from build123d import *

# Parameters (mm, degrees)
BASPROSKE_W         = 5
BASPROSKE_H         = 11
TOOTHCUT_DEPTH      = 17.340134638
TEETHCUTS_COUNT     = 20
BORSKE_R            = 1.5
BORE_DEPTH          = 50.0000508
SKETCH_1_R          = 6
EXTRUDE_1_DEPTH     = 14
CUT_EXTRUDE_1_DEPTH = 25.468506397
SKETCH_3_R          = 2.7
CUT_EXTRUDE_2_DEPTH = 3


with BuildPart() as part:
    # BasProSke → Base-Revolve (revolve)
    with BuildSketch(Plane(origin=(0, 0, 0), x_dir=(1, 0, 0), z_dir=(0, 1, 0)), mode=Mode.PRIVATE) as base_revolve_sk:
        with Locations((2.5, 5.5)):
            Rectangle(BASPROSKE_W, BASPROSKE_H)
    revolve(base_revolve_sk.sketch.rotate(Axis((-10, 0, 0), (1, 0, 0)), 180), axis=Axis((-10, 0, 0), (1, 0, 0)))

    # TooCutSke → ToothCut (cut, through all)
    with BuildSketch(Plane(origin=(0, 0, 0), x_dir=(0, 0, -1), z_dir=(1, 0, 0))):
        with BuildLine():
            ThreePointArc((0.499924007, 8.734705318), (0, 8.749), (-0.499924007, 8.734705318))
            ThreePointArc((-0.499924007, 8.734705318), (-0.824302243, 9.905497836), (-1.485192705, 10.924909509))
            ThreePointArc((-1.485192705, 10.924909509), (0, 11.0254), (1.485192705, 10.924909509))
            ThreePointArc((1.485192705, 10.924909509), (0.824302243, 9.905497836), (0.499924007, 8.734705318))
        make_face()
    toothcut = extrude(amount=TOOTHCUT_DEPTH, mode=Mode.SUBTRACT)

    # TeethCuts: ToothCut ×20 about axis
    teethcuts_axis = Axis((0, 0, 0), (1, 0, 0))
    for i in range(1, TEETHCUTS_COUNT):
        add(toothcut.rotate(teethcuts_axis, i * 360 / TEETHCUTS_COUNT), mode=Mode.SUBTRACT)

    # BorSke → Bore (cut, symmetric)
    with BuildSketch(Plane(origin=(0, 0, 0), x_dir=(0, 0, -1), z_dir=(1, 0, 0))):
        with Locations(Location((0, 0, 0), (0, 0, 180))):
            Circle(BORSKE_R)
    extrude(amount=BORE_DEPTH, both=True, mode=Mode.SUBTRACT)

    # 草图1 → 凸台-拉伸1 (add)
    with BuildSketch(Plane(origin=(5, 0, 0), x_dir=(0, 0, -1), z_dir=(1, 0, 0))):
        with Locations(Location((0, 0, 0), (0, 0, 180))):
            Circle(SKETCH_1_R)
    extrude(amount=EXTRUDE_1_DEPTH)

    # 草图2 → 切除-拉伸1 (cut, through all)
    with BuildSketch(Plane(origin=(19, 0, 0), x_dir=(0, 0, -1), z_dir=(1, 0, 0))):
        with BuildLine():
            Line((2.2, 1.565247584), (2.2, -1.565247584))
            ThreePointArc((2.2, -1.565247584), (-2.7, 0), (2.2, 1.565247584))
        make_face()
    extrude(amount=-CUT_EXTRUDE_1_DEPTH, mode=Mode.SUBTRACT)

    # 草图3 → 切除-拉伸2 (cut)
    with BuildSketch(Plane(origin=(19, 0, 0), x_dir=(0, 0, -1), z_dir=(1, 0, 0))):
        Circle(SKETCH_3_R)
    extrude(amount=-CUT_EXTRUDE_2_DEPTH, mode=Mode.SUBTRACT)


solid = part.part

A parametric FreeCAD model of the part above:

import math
import FreeCAD as App
import Part
import Sketcher

V = App.Vector
Q = App.Units.Quantity

doc = App.newDocument("Part")
body = doc.addObject("PartDesign::Body", "Body")

# Sketch on XZ plane
sketch1 = body.newObject("Sketcher::SketchObject", "Sketch")
sketch1.AttachmentSupport = (doc.getObject("XZ_Plane"), [""])
sketch1.MapMode = "FlatFace"
sketch1.addGeometry(Part.LineSegment(V(0, -11, 0), V(0, 0, 0)), False)
sketch1.addGeometry(Part.LineSegment(V(0, 0, 0), V(5, 0, 0)), False)
sketch1.addGeometry(Part.LineSegment(V(5, 0, 0), V(5, -11, 0)), False)
sketch1.addGeometry(Part.LineSegment(V(5, -11, 0), V(0, -11, 0)), False)
sketch1.addConstraint(Sketcher.Constraint("Coincident", 0, 2, 1, 1))
sketch1.addConstraint(Sketcher.Constraint("Coincident", 1, 2, 2, 1))
sketch1.addConstraint(Sketcher.Constraint("Coincident", 2, 2, 3, 1))
sketch1.addConstraint(Sketcher.Constraint("Coincident", 3, 2, 0, 1))
sketch1.addConstraint(Sketcher.Constraint("Vertical", 0))
sketch1.addConstraint(Sketcher.Constraint("Horizontal", 1))
sketch1.addConstraint(Sketcher.Constraint("Vertical", 2))
sketch1.addConstraint(Sketcher.Constraint("Horizontal", 3))
sketch1.addConstraint(Sketcher.Constraint("Coincident", 0, 2, -1, 1))
sketch1.addConstraint(Sketcher.Constraint("DistanceX", 1, 1, 1, 2, Q("5 mm")))
sketch1.addConstraint(Sketcher.Constraint("DistanceY", 0, 1, 0, 2, Q("11 mm")))
revolution = body.newObject("PartDesign::Revolution", "Revolution")
revolution.Profile = sketch1
revolution.ReferenceAxis = (sketch1, ["H_Axis"])
revolution.Angle = 360

# Sketch on YZ plane
sketch2 = body.newObject("Sketcher::SketchObject", "Sketch001")
sketch2.AttachmentSupport = (doc.getObject("YZ_Plane"), [""])
sketch2.MapMode = "FlatFace"
sketch2.addGeometry(Part.ArcOfCircle(Part.Circle(V(0, 0, 0), V(0, 0, 1), 8.749), math.radians(-3.275705), math.radians(3.275705)), False)
sketch2.addGeometry(Part.ArcOfCircle(Part.Circle(V(8.264487, -4.47219, 0), V(0, 0, 1), 4), math.radians(48.309566), math.radians(83.249005)), False)
sketch2.addGeometry(Part.ArcOfCircle(Part.Circle(V(0, 0, 0), V(0, 0, 1), 11.0254), math.radians(-7.741647), math.radians(7.741647)), False)
sketch2.addGeometry(Part.ArcOfCircle(Part.Circle(V(8.264487, 4.47219, 0), V(0, 0, 1), 4), math.radians(-83.249005), math.radians(-48.309566)), False)
sketch2.addConstraint(Sketcher.Constraint("Coincident", 0, 1, 1, 2))
sketch2.addConstraint(Sketcher.Constraint("Coincident", 1, 1, 2, 1))
sketch2.addConstraint(Sketcher.Constraint("Coincident", 2, 2, 3, 2))
sketch2.addConstraint(Sketcher.Constraint("Coincident", 3, 1, 0, 2))
sketch2.addConstraint(Sketcher.Constraint("Coincident", 0, 3, -1, 1))
sketch2.addConstraint(Sketcher.Constraint("Coincident", 2, 3, -1, 1))
sketch2.addConstraint(Sketcher.Constraint("Equal", 1, 3))
sketch2.addConstraint(Sketcher.Constraint("Symmetric", 1, 3, 3, 3, -1))
sketch2.addConstraint(Sketcher.Constraint("Radius", 1, Q("4 mm")))
sketch2.addConstraint(Sketcher.Constraint("Radius", 0, Q("8.749 mm")))
sketch2.addConstraint(Sketcher.Constraint("Radius", 2, Q("11.0254 mm")))
sketch2.addConstraint(Sketcher.Constraint("DistanceY", 1, 3, -1, 1, Q("4.47219 mm")))
sketch2.addConstraint(Sketcher.Constraint("DistanceX", -1, 1, 1, 1, Q("10.92491 mm")))
pocket1 = body.newObject("PartDesign::Pocket", "Pocket")
pocket1.Profile = sketch2
pocket1.Type = "ThroughAll"
pocket1.Reversed = True
doc.recompute()

polarpattern = body.newObject("PartDesign::PolarPattern", "PolarPattern")
polarpattern.Originals = [pocket1]
polarpattern.Axis = (doc.getObject("X_Axis"), [""])
polarpattern.Angle = 360
polarpattern.Occurrences = 20
body.Tip = polarpattern

# Sketch on YZ plane
sketch3 = body.newObject("Sketcher::SketchObject", "Sketch002")
sketch3.AttachmentSupport = (doc.getObject("YZ_Plane"), [""])
sketch3.MapMode = "FlatFace"
sketch3.addGeometry(Part.Circle(V(0, 0, 0), V(0, 0, 1), 1.5), False)
sketch3.addConstraint(Sketcher.Constraint("Coincident", 0, 3, -1, 1))
sketch3.addConstraint(Sketcher.Constraint("Diameter", 0, Q("3 mm")))
pocket2 = body.newObject("PartDesign::Pocket", "Pocket001")
pocket2.Profile = sketch3
pocket2.Length = 100.000102
pocket2.Midplane = True

# Sketch on YZ plane
sketch4 = body.newObject("Sketcher::SketchObject", "Sketch003")
sketch4.AttachmentSupport = (doc.getObject("YZ_Plane"), [""])
sketch4.MapMode = "FlatFace"
sketch4.AttachmentOffset = App.Placement(V(0, 0, 5), App.Rotation())
sketch4.addGeometry(Part.Circle(V(0, 0, 0), V(0, 0, 1), 6), False)
sketch4.addConstraint(Sketcher.Constraint("Coincident", 0, 3, -1, 1))
sketch4.addConstraint(Sketcher.Constraint("Diameter", 0, Q("12 mm")))
pad1 = body.newObject("PartDesign::Pad", "Pad")
pad1.Profile = sketch4
pad1.Length = 14

# Sketch on YZ plane
sketch5 = body.newObject("Sketcher::SketchObject", "Sketch004")
sketch5.AttachmentSupport = (doc.getObject("YZ_Plane"), [""])
sketch5.MapMode = "FlatFace"
sketch5.AttachmentOffset = App.Placement(V(0, 0, 19), App.Rotation())
sketch5.addGeometry(Part.LineSegment(V(-1.565248, -2.2, 0), V(1.565248, -2.2, 0)), False)
sketch5.addGeometry(Part.ArcOfCircle(Part.Circle(V(0, 0, 0), V(0, 0, 1), 2.7), math.radians(-54.569055), math.radians(234.569055)), False)
sketch5.addConstraint(Sketcher.Constraint("Coincident", 0, 1, 1, 2))
sketch5.addConstraint(Sketcher.Constraint("Coincident", 1, 1, 0, 2))
sketch5.addConstraint(Sketcher.Constraint("Horizontal", 0))
sketch5.addConstraint(Sketcher.Constraint("Coincident", 1, 3, -1, 1))
sketch5.addConstraint(Sketcher.Constraint("Radius", 1, Q("2.7 mm")))
sketch5.addConstraint(Sketcher.Constraint("DistanceY", 0, 1, -1, 1, Q("2.2 mm")))
pocket3 = body.newObject("PartDesign::Pocket", "Pocket002")
pocket3.Profile = sketch5
pocket3.Type = "ThroughAll"

# Sketch on YZ plane
sketch6 = body.newObject("Sketcher::SketchObject", "Sketch005")
sketch6.AttachmentSupport = (doc.getObject("YZ_Plane"), [""])
sketch6.MapMode = "FlatFace"
sketch6.AttachmentOffset = App.Placement(V(0, 0, 19), App.Rotation())
sketch6.addGeometry(Part.Circle(V(0, 0, 0), V(0, 0, 1), 2.7), False)
sketch6.addConstraint(Sketcher.Constraint("Coincident", 0, 3, -1, 1))
sketch6.addConstraint(Sketcher.Constraint("Diameter", 0, Q("5.4 mm")))
pocket4 = body.newObject("PartDesign::Pocket", "Pocket003")
pocket4.Profile = sketch6
pocket4.Length = 3

doc.recompute()
